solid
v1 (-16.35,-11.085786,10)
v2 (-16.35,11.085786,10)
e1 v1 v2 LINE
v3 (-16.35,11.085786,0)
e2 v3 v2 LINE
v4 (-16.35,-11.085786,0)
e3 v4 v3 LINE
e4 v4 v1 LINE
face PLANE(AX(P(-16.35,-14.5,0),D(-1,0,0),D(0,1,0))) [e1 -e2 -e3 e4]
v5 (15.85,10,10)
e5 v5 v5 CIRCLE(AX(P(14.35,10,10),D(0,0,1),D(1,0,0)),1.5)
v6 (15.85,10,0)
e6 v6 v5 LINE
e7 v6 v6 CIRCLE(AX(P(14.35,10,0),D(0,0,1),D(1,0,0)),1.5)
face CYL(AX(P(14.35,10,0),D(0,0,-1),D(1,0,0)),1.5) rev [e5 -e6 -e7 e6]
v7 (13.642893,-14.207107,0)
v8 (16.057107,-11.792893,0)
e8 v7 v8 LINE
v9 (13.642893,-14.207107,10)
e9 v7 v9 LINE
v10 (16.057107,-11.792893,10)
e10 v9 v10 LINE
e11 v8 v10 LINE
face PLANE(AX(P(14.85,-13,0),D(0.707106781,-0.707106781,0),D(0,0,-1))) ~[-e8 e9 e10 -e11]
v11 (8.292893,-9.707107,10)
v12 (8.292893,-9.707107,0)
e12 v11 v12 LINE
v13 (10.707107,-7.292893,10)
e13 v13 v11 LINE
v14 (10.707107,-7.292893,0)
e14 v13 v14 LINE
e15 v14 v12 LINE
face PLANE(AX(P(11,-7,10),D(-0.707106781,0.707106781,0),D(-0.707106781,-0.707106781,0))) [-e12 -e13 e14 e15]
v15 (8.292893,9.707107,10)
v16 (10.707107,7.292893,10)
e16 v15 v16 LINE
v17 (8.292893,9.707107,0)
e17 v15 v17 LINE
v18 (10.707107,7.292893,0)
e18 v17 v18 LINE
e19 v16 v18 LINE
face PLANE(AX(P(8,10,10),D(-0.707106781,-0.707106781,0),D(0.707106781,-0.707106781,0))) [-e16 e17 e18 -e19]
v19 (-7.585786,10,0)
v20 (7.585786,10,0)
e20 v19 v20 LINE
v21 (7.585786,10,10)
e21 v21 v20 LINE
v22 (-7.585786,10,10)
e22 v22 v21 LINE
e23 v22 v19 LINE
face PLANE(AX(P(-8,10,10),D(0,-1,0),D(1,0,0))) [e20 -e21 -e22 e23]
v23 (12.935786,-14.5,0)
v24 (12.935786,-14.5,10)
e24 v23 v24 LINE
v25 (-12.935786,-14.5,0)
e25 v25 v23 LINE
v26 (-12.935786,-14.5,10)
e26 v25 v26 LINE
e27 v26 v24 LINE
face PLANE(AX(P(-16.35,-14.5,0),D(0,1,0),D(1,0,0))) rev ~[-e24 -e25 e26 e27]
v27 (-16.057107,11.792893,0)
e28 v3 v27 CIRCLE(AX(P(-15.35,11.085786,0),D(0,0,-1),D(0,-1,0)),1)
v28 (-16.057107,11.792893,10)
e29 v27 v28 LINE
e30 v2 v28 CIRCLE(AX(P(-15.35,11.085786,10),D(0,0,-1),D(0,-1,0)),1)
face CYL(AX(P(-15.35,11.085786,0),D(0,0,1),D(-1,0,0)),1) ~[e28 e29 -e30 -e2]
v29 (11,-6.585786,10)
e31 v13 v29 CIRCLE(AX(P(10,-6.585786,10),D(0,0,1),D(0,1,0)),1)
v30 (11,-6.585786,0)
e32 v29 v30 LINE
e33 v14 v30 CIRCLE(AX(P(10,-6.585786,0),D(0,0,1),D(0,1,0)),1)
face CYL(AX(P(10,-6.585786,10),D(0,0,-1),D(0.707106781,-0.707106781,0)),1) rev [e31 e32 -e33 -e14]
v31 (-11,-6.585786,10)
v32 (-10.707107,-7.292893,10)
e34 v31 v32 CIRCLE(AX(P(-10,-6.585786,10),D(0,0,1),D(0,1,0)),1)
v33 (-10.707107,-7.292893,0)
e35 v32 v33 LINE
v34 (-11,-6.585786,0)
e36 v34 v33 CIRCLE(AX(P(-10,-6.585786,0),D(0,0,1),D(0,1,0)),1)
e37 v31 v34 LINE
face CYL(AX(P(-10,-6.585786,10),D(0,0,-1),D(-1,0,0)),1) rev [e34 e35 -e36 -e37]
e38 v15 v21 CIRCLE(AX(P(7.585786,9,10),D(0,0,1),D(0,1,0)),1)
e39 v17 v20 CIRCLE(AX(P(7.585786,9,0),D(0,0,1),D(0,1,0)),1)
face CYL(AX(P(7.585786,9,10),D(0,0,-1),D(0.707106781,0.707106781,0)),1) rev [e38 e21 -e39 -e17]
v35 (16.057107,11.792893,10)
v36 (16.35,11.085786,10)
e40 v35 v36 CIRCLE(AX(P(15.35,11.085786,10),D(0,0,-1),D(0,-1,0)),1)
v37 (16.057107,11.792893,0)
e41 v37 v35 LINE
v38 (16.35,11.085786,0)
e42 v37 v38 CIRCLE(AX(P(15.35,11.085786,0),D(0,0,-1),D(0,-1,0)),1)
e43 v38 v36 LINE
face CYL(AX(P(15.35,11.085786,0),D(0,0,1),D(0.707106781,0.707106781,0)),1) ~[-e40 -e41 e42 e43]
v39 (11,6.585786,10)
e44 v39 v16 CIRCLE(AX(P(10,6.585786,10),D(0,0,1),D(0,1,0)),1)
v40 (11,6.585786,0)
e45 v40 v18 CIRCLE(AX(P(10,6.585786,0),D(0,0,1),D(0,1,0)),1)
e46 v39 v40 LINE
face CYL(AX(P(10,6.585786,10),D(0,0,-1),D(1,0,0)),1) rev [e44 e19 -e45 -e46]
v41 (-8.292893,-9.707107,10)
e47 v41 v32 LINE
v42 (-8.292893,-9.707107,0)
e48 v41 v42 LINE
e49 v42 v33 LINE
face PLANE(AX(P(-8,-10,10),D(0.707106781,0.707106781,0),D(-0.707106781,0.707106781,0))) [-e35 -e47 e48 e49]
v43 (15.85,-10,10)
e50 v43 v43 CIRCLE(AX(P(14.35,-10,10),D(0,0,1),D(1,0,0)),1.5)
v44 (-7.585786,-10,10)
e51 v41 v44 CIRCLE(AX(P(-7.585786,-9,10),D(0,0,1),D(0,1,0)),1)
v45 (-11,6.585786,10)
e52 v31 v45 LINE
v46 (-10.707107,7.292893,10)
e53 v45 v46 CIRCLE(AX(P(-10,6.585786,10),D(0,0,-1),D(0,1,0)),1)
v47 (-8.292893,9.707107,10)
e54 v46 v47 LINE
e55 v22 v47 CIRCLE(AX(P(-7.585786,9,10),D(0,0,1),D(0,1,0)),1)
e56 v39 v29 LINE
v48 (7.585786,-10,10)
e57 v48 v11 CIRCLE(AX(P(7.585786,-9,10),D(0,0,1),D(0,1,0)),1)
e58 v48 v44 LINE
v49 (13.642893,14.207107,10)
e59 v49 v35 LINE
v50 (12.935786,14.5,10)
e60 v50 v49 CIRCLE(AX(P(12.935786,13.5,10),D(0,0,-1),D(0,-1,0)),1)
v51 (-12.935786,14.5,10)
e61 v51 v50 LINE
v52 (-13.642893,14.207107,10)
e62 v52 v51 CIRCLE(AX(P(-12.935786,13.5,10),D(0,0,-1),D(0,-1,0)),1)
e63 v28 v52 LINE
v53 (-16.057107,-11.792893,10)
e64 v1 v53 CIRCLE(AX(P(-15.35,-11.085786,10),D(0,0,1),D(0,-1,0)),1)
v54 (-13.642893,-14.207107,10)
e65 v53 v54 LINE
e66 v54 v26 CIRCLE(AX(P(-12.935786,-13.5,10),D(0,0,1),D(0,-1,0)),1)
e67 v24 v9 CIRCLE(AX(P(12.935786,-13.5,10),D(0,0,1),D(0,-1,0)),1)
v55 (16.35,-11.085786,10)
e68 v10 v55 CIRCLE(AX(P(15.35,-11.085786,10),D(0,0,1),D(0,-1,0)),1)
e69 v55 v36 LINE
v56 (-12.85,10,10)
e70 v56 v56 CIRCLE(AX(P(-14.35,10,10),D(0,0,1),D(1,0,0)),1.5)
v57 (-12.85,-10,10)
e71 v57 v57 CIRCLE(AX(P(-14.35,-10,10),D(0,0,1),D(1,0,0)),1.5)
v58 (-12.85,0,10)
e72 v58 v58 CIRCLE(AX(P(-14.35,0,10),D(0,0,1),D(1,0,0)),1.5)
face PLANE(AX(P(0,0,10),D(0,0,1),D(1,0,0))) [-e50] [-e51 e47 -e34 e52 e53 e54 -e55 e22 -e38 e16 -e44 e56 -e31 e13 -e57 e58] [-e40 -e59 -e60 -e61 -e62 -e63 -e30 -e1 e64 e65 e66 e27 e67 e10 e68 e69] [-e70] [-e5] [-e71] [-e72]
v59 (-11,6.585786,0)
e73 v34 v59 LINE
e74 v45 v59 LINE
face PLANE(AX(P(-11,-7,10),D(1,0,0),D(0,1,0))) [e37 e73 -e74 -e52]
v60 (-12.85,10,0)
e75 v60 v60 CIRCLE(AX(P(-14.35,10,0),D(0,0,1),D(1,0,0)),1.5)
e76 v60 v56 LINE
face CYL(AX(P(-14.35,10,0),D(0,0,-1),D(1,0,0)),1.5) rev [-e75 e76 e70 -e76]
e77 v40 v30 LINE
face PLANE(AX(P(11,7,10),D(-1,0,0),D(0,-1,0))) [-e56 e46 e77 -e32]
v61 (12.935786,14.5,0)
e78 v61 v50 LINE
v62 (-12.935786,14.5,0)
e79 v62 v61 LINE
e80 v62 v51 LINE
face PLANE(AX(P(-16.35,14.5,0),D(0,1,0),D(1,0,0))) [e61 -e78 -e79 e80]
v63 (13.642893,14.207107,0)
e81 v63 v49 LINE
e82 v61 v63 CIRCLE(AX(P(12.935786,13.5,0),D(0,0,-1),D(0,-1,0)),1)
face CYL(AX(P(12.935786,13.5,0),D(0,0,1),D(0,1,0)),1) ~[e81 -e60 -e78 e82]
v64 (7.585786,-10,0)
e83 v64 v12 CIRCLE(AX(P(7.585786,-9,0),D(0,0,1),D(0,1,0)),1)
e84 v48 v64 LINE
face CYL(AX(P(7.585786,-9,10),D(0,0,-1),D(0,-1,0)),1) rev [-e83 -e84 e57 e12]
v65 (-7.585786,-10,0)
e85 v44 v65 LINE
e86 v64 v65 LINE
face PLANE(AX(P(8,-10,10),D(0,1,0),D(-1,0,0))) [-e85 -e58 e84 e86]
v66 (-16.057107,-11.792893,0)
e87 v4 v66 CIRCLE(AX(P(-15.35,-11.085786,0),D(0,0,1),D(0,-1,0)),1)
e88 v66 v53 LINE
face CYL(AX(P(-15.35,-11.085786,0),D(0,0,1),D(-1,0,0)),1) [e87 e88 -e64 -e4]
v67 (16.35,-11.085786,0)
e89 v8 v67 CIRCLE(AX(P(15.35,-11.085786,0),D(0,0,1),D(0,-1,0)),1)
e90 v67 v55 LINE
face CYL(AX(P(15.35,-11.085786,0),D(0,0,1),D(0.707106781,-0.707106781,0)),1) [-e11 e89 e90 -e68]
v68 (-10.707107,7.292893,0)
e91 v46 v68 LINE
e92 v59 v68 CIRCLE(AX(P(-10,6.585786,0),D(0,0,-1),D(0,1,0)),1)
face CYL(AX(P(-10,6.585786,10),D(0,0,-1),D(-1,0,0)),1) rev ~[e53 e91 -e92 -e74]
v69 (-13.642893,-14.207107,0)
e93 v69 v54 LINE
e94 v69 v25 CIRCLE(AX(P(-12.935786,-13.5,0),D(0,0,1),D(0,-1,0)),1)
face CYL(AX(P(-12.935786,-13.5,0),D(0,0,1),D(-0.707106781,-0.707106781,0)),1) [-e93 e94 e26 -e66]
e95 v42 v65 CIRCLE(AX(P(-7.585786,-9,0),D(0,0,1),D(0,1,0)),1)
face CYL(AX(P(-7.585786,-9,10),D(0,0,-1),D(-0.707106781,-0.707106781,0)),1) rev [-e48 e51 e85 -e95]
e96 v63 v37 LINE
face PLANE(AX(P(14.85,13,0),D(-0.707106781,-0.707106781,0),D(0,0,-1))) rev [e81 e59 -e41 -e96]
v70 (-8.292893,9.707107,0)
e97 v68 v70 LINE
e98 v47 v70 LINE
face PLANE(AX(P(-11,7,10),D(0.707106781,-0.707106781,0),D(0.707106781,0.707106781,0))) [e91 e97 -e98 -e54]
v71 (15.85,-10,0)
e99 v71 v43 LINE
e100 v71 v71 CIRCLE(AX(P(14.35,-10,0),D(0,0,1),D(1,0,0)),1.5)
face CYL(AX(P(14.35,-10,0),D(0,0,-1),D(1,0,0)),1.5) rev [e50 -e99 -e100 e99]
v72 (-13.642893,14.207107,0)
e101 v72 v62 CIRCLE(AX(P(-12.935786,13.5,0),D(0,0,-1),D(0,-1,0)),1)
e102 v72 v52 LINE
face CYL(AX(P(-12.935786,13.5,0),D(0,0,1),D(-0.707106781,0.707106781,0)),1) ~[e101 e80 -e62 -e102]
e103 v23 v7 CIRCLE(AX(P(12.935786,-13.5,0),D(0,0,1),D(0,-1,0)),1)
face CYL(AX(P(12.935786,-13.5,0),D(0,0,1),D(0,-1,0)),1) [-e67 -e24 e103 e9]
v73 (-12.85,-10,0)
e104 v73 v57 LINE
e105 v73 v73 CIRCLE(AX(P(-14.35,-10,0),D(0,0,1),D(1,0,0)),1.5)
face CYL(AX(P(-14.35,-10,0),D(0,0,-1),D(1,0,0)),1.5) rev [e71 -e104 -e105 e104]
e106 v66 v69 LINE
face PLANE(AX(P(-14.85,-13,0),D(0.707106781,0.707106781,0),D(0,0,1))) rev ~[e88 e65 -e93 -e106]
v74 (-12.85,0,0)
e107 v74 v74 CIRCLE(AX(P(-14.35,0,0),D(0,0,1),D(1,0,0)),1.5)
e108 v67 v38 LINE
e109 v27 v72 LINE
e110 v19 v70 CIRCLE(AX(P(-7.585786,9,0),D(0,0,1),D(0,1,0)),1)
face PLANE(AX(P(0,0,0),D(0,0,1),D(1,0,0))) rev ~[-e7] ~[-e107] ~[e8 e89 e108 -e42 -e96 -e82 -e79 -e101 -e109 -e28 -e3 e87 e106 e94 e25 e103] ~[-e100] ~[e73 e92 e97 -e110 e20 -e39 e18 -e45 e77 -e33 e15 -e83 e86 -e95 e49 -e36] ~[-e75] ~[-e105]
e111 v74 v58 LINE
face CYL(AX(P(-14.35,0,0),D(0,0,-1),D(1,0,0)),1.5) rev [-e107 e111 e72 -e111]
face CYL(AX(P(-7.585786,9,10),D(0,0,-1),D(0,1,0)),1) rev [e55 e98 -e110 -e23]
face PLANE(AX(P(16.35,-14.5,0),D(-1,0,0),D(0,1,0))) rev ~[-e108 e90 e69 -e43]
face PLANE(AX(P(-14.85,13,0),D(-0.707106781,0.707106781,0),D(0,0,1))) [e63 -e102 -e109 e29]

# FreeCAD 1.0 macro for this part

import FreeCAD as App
import Part
import Sketcher

V = App.Vector
Q = App.Units.Quantity


def edges_at(feature, points):
    """Names of the edges that pass closest to the given points."""
    edges = feature.Shape.Edges
    near = lambda p: min(range(len(edges)), key=lambda i: edges[i].distToShape(Part.Vertex(*p))[0])
    return sorted({f"Edge{near(p) + 1}" for p in points})


def add_polygon(sketch, points):
    """Adds a closed chain of lines whose ends are joined by coincident constraints."""
    first, n = sketch.GeometryCount, len(points)
    for a, b in zip(points, points[1:] + points[:1]):
        sketch.addGeometry(Part.LineSegment(App.Vector(*a, 0), App.Vector(*b, 0)), False)
    for i in range(n):
        sketch.addConstraint(Sketcher.Constraint("Coincident", first + i, 2, first + (i + 1) % n, 1))

doc = App.newDocument("Part")
body = doc.addObject("PartDesign::Body", "Body")

sketch1 = doc.addObject("Sketcher::SketchObject", "Sketch")
body.addObject(sketch1)
sketch1.AttachmentSupport = (doc.XY_Plane, [""])
sketch1.MapMode = "FlatFace"
add_polygon(sketch1, [(-16.35, 14.5), (-16.35, -14.5), (16.35, -14.5), (16.35, 14.5)])
sketch1.addGeometry(Part.Circle(V(-14.35, -10, 0), V(0, 0, 1), 1.5), False)
sketch1.addGeometry(Part.Circle(V(14.35, -10, 0), V(0, 0, 1), 1.5), False)
sketch1.addGeometry(Part.Circle(V(-14.35, 0, 0), V(0, 0, 1), 1.5), False)
sketch1.addGeometry(Part.Circle(V(-14.35, 10, 0), V(0, 0, 1), 1.5), False)
sketch1.addGeometry(Part.Circle(V(14.35, 10, 0), V(0, 0, 1), 1.5), False)
sketch1.addConstraint(Sketcher.Constraint("Vertical", 0))
sketch1.addConstraint(Sketcher.Constraint("Horizontal", 1))
sketch1.addConstraint(Sketcher.Constraint("Vertical", 2))
sketch1.addConstraint(Sketcher.Constraint("Horizontal", 3))
sketch1.addConstraint(Sketcher.Constraint("Equal", 4, 5))
sketch1.addConstraint(Sketcher.Constraint("Equal", 5, 6))
sketch1.addConstraint(Sketcher.Constraint("Equal", 6, 7))
sketch1.addConstraint(Sketcher.Constraint("Equal", 7, 8))
sketch1.addConstraint(Sketcher.Constraint("Symmetric", 5, 3, 7, 3, -1, 1))
sketch1.addConstraint(Sketcher.Constraint("Symmetric", 4, 3, 8, 3, -1, 1))
sketch1.addConstraint(Sketcher.Constraint("Symmetric", 0, 2, 2, 2, -1, 1))
sketch1.addConstraint(Sketcher.Constraint("Symmetric", 4, 3, 5, 3, -2))
sketch1.addConstraint(Sketcher.Constraint("PointOnObject", 6, 3, -1))
sketch1.addConstraint(Sketcher.Constraint("Vertical", 4, 3, 6, 3))
sketch1.addConstraint(Sketcher.Constraint("Diameter", 4, Q("3 mm")))
sketch1.addConstraint(Sketcher.Constraint("DistanceY", 0, 2, 0, 1, Q("29 mm")))
sketch1.addConstraint(Sketcher.Constraint("DistanceX", 1, 1, 1, 2, Q("32.7 mm")))
sketch1.addConstraint(Sketcher.Constraint("DistanceY", 4, 3, -1, 1, Q("10 mm")))
sketch1.addConstraint(Sketcher.Constraint("DistanceX", 0, 2, 4, 3, Q("2 mm")))
pad1 = doc.addObject("PartDesign::Pad", "Pad")
body.addObject(pad1)
pad1.Profile = sketch1
pad1.Length = 10
doc.recompute()

chamfer = doc.addObject("PartDesign::Chamfer", "Chamfer")
body.addObject(chamfer)
chamfer.Base = (pad1, edges_at(pad1, [
    (16.35, -14.5, 5),
    (-16.35, -14.5, 5),
    (-16.35, 14.5, 5),
    (16.35, 14.5, 5),
]))
chamfer.Size = 3

sketch2 = doc.addObject("Sketcher::SketchObject", "Sketch001")
body.addObject(sketch2)
sketch2.AttachmentSupport = (doc.XY_Plane, [""])
sketch2.MapMode = "FlatFace"
sketch2.AttachmentOffset = App.Placement(V(0, 0, 10), App.Rotation())
add_polygon(sketch2, [(-8, 10), (-11, 7), (-11, -7), (-8, -10), (8, -10), (11, -7), (11, 7), (8, 10)])
sketch2.addConstraint(Sketcher.Constraint("Vertical", 1))
sketch2.addConstraint(Sketcher.Constraint("Horizontal", 3))
sketch2.addConstraint(Sketcher.Constraint("Vertical", 5))
sketch2.addConstraint(Sketcher.Constraint("Horizontal", 7))
sketch2.addConstraint(Sketcher.Constraint("Symmetric", 0, 2, 4, 2, -1, 1))
sketch2.addConstraint(Sketcher.Constraint("Symmetric", 2, 2, 6, 2, -1, 1))
sketch2.addConstraint(Sketcher.Constraint("Perpendicular", 0, 2))
sketch2.addConstraint(Sketcher.Constraint("Perpendicular", 2, 4))
sketch2.addConstraint(Sketcher.Constraint("Perpendicular", 4, 6))
sketch2.addConstraint(Sketcher.Constraint("Horizontal", 1, 2, 4, 2))
sketch2.addConstraint(Sketcher.Constraint("Vertical", 3, 2, 6, 2))
sketch2.addConstraint(Sketcher.Constraint("DistanceX", 3, 1, 3, 2, Q("16 mm")))
sketch2.addConstraint(Sketcher.Constraint("DistanceY", 1, 2, 1, 1, Q("14 mm")))
sketch2.addConstraint(Sketcher.Constraint("DistanceX", 0, 2, -1, 1, Q("11 mm")))
pocket1 = doc.addObject("PartDesign::Pocket", "Pocket")
body.addObject(pocket1)
pocket1.Profile = sketch2
pocket1.Type = "ThroughAll"
doc.recompute()

fillet = doc.addObject("PartDesign::Fillet", "Fillet")
body.addObject(fillet)
fillet.Base = (pocket1, edges_at(pocket1, [
    (16.35, 11.5, 5),
    (16.35, -11.5, 5),
    (-13.35, -14.5, 5),
    (13.35, -14.5, 5),
    (-13.35, 14.5, 5),
    (13.35, 14.5, 5),
    (-16.35, 11.5, 5),
    (-16.35, -11.5, 5),
    (-8, 10, 5),
    (8, 10, 5),
    (11, 7, 5),
    (11, -7, 5),
    (8, -10, 5),
    (-8, -10, 5),
    (-11, -7, 5),
    (-11, 7, 5),
]))
fillet.Radius = 1

doc.recompute()
